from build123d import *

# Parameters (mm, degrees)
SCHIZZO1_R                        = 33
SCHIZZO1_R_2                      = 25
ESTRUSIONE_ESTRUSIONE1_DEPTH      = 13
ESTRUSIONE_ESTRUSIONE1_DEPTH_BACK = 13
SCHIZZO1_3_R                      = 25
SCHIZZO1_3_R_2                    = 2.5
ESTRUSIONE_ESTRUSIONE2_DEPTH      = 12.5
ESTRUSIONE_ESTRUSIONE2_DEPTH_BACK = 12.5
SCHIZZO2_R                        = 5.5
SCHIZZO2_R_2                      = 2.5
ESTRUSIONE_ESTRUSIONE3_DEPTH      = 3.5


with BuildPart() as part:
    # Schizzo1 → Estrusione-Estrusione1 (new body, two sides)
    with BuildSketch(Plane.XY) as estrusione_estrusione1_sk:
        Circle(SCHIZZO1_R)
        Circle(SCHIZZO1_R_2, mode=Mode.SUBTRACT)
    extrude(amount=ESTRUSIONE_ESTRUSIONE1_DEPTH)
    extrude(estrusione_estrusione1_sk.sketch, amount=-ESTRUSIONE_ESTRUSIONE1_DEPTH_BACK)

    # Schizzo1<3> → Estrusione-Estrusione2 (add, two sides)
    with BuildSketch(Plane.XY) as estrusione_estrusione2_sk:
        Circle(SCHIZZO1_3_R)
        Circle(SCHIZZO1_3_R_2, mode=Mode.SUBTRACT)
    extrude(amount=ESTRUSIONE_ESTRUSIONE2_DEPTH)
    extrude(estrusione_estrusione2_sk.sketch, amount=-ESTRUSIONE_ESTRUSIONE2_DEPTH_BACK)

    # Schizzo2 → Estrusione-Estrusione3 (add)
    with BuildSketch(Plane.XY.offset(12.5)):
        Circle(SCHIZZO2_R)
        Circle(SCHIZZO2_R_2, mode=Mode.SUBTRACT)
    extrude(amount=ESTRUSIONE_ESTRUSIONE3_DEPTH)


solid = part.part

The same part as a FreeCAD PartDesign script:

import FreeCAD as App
import Part
import Sketcher
from FreeCAD import Vector
Q = App.Units.Quantity

doc = App.newDocument("Part")
body = doc.addObject("PartDesign::Body", "Body")

# Sketch on XY plane
sketch1 = body.newObject("Sketcher::SketchObject", "Sketch")
sketch1.AttachmentSupport = (doc.getObject("XY_Plane"), [""])
sketch1.MapMode = "FlatFace"
sketch1.addGeometry([
    Part.Circle(Vector(0, 0, 0), Vector(0, 0, 1), 33),
    Part.Circle(Vector(0, 0, 0), Vector(0, 0, 1), 25),
], False)
sketch1.addConstraint([
    Sketcher.Constraint("Coincident", 0, 3, -1, 1),
    Sketcher.Constraint("Coincident", 1, 3, -1, 1),
    Sketcher.Constraint("Diameter", 0, Q("66 mm")),
    Sketcher.Constraint("Diameter", 1, Q("50 mm")),
])
pad1 = body.newObject("PartDesign::Pad", "Pad")
pad1.Profile = sketch1
pad1.Type = "TwoLengths"
pad1.Length = 13
pad1.Length2 = 13

# Sketch on XY plane
sketch2 = body.newObject("Sketcher::SketchObject", "Sketch001")
sketch2.AttachmentSupport = (doc.getObject("XY_Plane"), [""])
sketch2.MapMode = "FlatFace"
sketch2.addGeometry([
    Part.Circle(Vector(0, 0, 0), Vector(0, 0, 1), 25),
    Part.Circle(Vector(0, 0, 0), Vector(0, 0, 1), 2.5),
], False)
sketch2.addConstraint([
    Sketcher.Constraint("Coincident", 0, 3, -1, 1),
    Sketcher.Constraint("Coincident", 1, 3, -1, 1),
    Sketcher.Constraint("Diameter", 0, Q("50 mm")),
    Sketcher.Constraint("Diameter", 1, Q("5 mm")),
])
pad2 = body.newObject("PartDesign::Pad", "Pad001")
pad2.Profile = sketch2
pad2.Type = "TwoLengths"
pad2.Length = 12.5
pad2.Length2 = 12.5

# Sketch on XY plane
sketch3 = body.newObject("Sketcher::SketchObject", "Sketch002")
sketch3.AttachmentSupport = (doc.getObject("XY_Plane"), [""])
sketch3.MapMode = "FlatFace"
sketch3.AttachmentOffset = App.Placement(Vector(0, 0, 12.5), App.Rotation())
sketch3.addGeometry([
    Part.Circle(Vector(0, 0, 0), Vector(0, 0, 1), 5.5),
    Part.Circle(Vector(0, 0, 0), Vector(0, 0, 1), 2.5),
], False)
sketch3.addConstraint([
    Sketcher.Constraint("Coincident", 0, 3, -1, 1),
    Sketcher.Constraint("Coincident", 1, 3, -1, 1),
    Sketcher.Constraint("Diameter", 0, Q("11 mm")),
    Sketcher.Constraint("Diameter", 1, Q("5 mm")),
])
pad3 = body.newObject("PartDesign::Pad", "Pad002")
pad3.Profile = sketch3
pad3.Length = 3.5

doc.recompute()
